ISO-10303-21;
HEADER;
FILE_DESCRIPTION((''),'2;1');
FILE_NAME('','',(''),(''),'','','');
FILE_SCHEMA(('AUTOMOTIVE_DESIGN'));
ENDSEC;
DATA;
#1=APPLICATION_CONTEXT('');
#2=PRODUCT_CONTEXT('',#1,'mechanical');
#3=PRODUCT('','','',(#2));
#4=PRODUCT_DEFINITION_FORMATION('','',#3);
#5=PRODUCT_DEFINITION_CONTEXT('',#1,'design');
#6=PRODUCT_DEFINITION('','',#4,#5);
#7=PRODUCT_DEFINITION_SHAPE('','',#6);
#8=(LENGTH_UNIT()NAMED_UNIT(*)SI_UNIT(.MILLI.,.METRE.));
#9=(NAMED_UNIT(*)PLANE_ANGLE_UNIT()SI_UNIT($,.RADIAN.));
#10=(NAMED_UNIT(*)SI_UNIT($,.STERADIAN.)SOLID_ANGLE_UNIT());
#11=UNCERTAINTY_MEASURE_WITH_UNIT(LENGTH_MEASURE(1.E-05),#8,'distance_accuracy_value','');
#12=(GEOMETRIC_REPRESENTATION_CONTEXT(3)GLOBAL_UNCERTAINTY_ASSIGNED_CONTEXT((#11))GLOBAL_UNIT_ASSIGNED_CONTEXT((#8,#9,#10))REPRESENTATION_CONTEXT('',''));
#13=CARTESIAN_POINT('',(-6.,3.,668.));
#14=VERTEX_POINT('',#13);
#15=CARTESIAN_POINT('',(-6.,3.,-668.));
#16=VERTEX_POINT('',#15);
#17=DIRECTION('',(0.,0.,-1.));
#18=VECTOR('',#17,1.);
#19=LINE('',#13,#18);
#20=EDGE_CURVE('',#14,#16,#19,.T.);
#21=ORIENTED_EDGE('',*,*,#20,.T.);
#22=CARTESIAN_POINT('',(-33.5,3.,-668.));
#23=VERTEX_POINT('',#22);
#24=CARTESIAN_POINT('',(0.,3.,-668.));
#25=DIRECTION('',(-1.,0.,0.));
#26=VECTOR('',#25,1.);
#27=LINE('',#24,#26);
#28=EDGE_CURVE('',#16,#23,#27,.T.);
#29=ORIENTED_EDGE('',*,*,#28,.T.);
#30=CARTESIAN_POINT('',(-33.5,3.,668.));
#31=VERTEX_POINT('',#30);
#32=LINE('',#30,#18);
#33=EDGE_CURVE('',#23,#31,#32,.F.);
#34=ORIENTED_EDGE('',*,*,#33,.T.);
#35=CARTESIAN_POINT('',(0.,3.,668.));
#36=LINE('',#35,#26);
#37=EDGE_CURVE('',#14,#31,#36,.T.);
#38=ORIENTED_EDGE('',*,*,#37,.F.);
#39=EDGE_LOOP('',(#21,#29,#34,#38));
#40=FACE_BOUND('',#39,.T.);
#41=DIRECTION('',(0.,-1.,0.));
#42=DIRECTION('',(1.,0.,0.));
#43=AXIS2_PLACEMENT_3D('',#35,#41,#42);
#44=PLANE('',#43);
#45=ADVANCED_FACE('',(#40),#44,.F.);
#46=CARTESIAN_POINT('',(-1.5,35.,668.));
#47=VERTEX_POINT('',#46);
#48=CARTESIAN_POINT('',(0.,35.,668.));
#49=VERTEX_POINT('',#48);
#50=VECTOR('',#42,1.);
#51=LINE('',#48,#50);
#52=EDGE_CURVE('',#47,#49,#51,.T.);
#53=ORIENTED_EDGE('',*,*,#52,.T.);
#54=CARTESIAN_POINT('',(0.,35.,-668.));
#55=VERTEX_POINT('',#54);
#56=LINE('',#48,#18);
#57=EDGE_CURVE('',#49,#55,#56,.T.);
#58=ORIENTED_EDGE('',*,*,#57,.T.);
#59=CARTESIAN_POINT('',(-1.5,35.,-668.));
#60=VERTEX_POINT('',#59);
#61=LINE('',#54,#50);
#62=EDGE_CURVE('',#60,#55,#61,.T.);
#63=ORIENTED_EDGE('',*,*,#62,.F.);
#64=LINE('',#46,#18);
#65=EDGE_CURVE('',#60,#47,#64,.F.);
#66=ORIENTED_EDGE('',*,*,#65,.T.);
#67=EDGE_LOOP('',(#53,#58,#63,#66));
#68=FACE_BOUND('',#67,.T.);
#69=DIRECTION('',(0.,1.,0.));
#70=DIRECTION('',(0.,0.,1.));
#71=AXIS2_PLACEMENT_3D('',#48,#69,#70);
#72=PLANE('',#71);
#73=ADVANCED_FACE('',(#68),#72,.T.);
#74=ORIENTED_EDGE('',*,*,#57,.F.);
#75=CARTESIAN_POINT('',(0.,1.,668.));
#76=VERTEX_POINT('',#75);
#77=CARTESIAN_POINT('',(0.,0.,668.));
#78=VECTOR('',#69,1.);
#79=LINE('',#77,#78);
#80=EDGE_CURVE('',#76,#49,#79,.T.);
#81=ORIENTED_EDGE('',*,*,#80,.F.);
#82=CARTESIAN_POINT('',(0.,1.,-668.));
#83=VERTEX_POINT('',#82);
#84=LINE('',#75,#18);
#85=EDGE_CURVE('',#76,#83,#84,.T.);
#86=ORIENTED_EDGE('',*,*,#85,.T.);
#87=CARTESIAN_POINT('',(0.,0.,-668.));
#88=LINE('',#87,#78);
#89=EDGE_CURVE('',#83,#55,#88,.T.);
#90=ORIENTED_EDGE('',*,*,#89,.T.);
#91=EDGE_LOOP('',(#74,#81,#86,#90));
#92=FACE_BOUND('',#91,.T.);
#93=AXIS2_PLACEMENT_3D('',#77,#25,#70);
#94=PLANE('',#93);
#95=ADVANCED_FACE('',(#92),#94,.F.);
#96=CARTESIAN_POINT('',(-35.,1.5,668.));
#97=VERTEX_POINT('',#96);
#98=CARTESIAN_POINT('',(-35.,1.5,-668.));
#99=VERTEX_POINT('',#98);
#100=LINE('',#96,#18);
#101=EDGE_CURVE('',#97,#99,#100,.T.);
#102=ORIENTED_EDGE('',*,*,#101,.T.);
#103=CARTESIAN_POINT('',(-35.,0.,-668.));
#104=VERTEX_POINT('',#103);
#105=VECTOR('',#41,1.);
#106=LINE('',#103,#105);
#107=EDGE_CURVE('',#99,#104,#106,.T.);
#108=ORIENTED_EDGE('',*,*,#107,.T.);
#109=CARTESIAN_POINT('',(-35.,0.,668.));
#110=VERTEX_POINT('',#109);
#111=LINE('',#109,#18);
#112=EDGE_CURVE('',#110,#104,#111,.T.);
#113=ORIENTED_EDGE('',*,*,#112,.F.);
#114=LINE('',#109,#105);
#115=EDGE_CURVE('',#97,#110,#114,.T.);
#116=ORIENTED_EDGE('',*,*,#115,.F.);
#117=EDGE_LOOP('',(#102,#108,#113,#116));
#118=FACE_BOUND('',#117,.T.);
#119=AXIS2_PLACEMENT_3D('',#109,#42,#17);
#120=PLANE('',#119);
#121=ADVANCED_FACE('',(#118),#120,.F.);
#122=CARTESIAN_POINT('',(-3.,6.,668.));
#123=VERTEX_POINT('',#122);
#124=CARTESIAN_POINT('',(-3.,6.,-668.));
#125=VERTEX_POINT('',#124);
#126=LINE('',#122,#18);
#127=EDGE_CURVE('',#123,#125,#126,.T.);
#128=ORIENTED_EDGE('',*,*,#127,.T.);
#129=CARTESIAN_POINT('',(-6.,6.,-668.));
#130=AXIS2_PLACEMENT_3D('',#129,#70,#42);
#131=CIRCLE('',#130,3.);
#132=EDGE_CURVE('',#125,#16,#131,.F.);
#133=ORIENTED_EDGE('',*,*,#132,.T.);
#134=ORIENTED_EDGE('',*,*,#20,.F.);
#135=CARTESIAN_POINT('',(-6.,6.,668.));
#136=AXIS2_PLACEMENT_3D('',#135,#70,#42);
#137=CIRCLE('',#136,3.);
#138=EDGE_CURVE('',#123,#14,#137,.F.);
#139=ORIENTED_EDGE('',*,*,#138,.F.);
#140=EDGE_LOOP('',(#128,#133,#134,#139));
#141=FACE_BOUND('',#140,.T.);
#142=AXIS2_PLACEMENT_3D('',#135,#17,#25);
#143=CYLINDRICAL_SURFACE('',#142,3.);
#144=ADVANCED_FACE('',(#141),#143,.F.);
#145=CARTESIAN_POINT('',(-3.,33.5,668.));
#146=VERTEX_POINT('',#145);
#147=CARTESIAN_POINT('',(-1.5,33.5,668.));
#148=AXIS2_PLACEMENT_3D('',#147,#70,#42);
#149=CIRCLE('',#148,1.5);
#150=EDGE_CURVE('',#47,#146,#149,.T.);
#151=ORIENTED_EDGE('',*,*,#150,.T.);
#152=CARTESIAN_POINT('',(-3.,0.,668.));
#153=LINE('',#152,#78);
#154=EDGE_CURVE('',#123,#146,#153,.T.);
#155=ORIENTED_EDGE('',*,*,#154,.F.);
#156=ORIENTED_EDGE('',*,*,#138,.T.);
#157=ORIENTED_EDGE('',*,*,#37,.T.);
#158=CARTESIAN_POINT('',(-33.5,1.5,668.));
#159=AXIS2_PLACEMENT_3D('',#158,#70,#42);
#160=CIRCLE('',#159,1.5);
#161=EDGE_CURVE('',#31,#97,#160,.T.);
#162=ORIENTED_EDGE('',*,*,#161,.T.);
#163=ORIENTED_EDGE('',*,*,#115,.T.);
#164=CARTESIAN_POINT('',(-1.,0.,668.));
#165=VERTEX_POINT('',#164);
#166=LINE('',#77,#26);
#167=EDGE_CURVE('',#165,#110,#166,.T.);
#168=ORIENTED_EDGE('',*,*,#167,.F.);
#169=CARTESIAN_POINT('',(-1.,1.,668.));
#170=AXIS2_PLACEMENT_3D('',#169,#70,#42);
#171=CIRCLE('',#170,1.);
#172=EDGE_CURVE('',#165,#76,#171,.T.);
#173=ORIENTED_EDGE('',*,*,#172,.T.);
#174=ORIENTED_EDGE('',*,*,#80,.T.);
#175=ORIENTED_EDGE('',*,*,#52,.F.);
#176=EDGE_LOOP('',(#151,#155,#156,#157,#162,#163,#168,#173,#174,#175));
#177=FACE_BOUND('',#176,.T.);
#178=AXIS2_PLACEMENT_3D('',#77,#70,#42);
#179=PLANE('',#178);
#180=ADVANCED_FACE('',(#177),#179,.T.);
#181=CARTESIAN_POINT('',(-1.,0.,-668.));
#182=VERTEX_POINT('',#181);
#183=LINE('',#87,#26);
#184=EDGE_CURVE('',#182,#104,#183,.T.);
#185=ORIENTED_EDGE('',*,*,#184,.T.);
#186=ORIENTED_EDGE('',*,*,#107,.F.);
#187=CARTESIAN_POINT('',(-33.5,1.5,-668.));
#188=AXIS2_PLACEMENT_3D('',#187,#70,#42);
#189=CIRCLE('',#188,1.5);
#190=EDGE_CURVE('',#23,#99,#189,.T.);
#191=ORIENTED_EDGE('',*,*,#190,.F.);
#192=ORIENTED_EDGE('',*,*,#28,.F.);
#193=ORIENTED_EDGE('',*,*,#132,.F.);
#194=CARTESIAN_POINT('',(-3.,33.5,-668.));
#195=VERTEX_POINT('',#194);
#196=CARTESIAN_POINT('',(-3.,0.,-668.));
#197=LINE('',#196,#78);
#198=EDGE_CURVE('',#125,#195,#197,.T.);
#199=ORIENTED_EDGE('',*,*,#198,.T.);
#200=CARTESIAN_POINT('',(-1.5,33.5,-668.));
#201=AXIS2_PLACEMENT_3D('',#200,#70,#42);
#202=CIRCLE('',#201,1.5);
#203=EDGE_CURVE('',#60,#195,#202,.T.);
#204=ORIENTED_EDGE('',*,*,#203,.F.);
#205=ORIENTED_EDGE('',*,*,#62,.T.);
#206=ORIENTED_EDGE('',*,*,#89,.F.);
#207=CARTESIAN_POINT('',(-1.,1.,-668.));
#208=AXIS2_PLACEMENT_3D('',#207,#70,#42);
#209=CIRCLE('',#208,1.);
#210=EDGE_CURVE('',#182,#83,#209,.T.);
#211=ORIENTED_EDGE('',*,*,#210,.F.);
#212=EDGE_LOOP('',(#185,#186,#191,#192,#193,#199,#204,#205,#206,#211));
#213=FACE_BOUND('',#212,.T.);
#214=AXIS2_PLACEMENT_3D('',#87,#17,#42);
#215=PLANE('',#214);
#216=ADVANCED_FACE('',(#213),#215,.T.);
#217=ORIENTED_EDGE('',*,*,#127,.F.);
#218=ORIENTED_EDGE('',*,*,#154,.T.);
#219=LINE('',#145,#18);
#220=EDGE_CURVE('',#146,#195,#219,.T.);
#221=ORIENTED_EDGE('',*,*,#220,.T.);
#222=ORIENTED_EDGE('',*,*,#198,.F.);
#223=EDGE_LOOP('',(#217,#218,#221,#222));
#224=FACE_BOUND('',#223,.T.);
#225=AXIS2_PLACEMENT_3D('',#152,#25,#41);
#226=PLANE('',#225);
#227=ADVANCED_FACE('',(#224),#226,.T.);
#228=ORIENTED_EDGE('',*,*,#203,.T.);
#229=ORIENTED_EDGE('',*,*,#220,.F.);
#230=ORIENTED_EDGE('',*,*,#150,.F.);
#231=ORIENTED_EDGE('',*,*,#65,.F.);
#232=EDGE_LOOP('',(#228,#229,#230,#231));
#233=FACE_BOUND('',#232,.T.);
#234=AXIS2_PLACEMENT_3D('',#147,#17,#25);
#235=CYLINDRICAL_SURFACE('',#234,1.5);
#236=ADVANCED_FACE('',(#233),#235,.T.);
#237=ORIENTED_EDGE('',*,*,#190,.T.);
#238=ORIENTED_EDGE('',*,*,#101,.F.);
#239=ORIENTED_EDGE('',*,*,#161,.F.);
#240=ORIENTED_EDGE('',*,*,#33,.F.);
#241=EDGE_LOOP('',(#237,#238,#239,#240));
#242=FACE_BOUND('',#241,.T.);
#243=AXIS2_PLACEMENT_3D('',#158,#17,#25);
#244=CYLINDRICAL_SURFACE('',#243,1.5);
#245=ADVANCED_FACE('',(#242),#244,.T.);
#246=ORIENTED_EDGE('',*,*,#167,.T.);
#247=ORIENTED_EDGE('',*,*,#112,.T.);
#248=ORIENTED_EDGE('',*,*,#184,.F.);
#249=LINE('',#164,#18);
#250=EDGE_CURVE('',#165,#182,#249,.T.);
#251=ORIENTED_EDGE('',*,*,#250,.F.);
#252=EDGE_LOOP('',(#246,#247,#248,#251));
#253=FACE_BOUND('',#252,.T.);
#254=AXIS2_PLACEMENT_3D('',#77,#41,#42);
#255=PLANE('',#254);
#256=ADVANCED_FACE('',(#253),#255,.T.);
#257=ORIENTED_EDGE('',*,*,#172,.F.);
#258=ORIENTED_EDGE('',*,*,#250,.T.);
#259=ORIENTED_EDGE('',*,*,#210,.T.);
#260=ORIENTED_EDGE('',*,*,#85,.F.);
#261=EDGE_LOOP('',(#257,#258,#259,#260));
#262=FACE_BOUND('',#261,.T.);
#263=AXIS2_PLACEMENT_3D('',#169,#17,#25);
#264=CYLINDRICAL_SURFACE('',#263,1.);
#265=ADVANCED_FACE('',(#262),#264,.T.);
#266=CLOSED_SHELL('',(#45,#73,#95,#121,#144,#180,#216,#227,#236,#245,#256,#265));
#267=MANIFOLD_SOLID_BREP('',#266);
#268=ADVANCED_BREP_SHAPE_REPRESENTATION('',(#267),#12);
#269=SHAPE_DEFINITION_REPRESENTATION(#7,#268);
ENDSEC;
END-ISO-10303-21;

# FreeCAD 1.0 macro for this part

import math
import FreeCAD as App
import Part
import Sketcher

V = App.Vector
Q = App.Units.Quantity


def edges_at(feature, points):
    """Names of the edges that pass closest to the given points."""
    edges = feature.Shape.Edges
    near = lambda p: min(range(len(edges)), key=lambda i: edges[i].distToShape(Part.Vertex(*p))[0])
    return sorted({f"Edge{near(p) + 1}" for p in points})

doc = App.newDocument("Part")
body = doc.addObject("PartDesign::Body", "Body")

sketch1 = doc.addObject("Sketcher::SketchObject", "Sketch")
body.addObject(sketch1)
sketch1.AttachmentSupport = (doc.XY_Plane, [""])
sketch1.MapMode = "FlatFace"
sketch1.addGeometry(Part.LineSegment(V(-35, 0, 0), V(-1, 0, 0)), False)
sketch1.addGeometry(Part.ArcOfCircle(Part.Circle(V(-1, 1, 0), V(0, 0, 1), 1), math.radians(-90), math.radians(0)), False)
sketch1.addGeometry(Part.LineSegment(V(0, 1, 0), V(0, 35, 0)), False)
sketch1.addGeometry(Part.LineSegment(V(0, 35, 0), V(-3, 35, 0)), False)
sketch1.addGeometry(Part.LineSegment(V(-3, 35, 0), V(-3, 6, 0)), False)
sketch1.addGeometry(Part.ArcOfCircle(Part.Circle(V(-6, 6, 0), V(0, 0, 1), 3), math.radians(-90), math.radians(0)), False)
sketch1.addGeometry(Part.LineSegment(V(-6, 3, 0), V(-35, 3, 0)), False)
sketch1.addGeometry(Part.LineSegment(V(-35, 3, 0), V(-35, 0, 0)), False)
sketch1.addConstraint(Sketcher.Constraint("Tangent", 0, 2, 1, 1))
sketch1.addConstraint(Sketcher.Constraint("Tangent", 1, 2, 2, 1))
sketch1.addConstraint(Sketcher.Constraint("Coincident", 2, 2, 3, 1))
sketch1.addConstraint(Sketcher.Constraint("Coincident", 3, 2, 4, 1))
sketch1.addConstraint(Sketcher.Constraint("Tangent", 4, 2, 5, 2))
sketch1.addConstraint(Sketcher.Constraint("Tangent", 5, 1, 6, 1))
sketch1.addConstraint(Sketcher.Constraint("Coincident", 6, 2, 7, 1))
sketch1.addConstraint(Sketcher.Constraint("Coincident", 7, 2, 0, 1))
sketch1.addConstraint(Sketcher.Constraint("Horizontal", 0))
sketch1.addConstraint(Sketcher.Constraint("Vertical", 2))
sketch1.addConstraint(Sketcher.Constraint("Horizontal", 3))
sketch1.addConstraint(Sketcher.Constraint("Vertical", 4))
sketch1.addConstraint(Sketcher.Constraint("Horizontal", 6))
sketch1.addConstraint(Sketcher.Constraint("Vertical", 7))
sketch1.addConstraint(Sketcher.Constraint("PointOnObject", 0, 2, -1))
sketch1.addConstraint(Sketcher.Constraint("PointOnObject", 1, 2, -2))
sketch1.addConstraint(Sketcher.Constraint("Equal", 0, 2))
sketch1.addConstraint(Sketcher.Constraint("Equal", 6, 4))
sketch1.addConstraint(Sketcher.Constraint("Radius", 1, Q("1 mm")))
sketch1.addConstraint(Sketcher.Constraint("Radius", 5, Q("3 mm")))
sketch1.addConstraint(Sketcher.Constraint("DistanceX", 0, 1, 0, 2, Q("34 mm")))
sketch1.addConstraint(Sketcher.Constraint("DistanceX", 3, 2, 3, 1, Q("3 mm")))
pad1 = doc.addObject("PartDesign::Pad", "Pad")
body.addObject(pad1)
pad1.Profile = sketch1
pad1.Length = 668
doc.recompute()

fillet = doc.addObject("PartDesign::Fillet", "Fillet")
body.addObject(fillet)
fillet.Base = (pad1, edges_at(pad1, [(-35, 3, 334), (-3, 35, 334)]))
fillet.Radius = 1.5
body2 = doc.addObject("PartDesign::Body", "Body001")
doc.recompute()

body2.BaseFeature = body
doc.recompute()

mirroring = doc.addObject("Part::Mirroring", "Mirroring")
mirroring.Source = body
mirroring.Base = V(0, 0, 0)
mirroring.Normal = V(0, 0, 1)
body3 = doc.addObject("PartDesign::Body", "Body002")
body3.BaseFeature = mirroring
boolean = doc.addObject("PartDesign::Boolean", "Boolean")
body2.addObject(boolean)
boolean.Type = "Fuse"
boolean.addObjects([body3])
doc.recompute()
mirroring.Visibility = False

doc.recompute()
